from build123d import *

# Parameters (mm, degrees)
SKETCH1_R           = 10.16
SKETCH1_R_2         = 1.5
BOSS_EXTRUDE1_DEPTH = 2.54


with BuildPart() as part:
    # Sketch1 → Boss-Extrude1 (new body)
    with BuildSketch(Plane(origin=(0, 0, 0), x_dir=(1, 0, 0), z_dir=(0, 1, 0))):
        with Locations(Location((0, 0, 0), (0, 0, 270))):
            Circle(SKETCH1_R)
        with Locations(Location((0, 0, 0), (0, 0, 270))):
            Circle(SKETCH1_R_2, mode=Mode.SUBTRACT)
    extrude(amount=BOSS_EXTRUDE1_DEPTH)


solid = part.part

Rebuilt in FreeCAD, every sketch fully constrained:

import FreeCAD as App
import Part
import Sketcher
from FreeCAD import Vector
Q = App.Units.Quantity

doc = App.newDocument("Part")
params = doc.addObject("Spreadsheet::Sheet", "Params")
for row, (alias, value) in enumerate([
    ("sketch1_diameter", "0.8 in"),
    ("pad1_length", "0.1 in"),
], start=1):
    params.set(f"A{row}", alias)
    params.set(f"B{row}", "=" + value)
    params.setAlias(f"B{row}", alias)

body = doc.addObject("PartDesign::Body", "Body")

# Sketch on XZ plane
sketch1 = body.newObject("Sketcher::SketchObject", "Sketch")
sketch1.AttachmentSupport = (doc.getObject("XZ_Plane"), [""])
sketch1.MapMode = "FlatFace"
sketch1.addGeometry(Part.Circle(Vector(0, 0, 0), Vector(0, 0, 1), 10.2), False)
sketch1.addGeometry(Part.Circle(Vector(0, 0, 0), Vector(0, 0, 1), 1.5), False)
sketch1.addConstraint(Sketcher.Constraint("Coincident", 0, 3, -1, 1))
sketch1.addConstraint(Sketcher.Constraint("Coincident", 1, 3, -1, 1))
sketch1.addConstraint(Sketcher.Constraint("Diameter", 0, Q("0.8 in")))
sketch1.addConstraint(Sketcher.Constraint("Diameter", 1, 3.0))
sketch1.setExpression("Constraints[2]", "Params.sketch1_diameter")
pad1 = body.newObject("PartDesign::Pad", "Pad")
pad1.Profile = sketch1
pad1.setExpression("Length", "Params.pad1_length")
pad1.Reversed = True

doc.recompute()
